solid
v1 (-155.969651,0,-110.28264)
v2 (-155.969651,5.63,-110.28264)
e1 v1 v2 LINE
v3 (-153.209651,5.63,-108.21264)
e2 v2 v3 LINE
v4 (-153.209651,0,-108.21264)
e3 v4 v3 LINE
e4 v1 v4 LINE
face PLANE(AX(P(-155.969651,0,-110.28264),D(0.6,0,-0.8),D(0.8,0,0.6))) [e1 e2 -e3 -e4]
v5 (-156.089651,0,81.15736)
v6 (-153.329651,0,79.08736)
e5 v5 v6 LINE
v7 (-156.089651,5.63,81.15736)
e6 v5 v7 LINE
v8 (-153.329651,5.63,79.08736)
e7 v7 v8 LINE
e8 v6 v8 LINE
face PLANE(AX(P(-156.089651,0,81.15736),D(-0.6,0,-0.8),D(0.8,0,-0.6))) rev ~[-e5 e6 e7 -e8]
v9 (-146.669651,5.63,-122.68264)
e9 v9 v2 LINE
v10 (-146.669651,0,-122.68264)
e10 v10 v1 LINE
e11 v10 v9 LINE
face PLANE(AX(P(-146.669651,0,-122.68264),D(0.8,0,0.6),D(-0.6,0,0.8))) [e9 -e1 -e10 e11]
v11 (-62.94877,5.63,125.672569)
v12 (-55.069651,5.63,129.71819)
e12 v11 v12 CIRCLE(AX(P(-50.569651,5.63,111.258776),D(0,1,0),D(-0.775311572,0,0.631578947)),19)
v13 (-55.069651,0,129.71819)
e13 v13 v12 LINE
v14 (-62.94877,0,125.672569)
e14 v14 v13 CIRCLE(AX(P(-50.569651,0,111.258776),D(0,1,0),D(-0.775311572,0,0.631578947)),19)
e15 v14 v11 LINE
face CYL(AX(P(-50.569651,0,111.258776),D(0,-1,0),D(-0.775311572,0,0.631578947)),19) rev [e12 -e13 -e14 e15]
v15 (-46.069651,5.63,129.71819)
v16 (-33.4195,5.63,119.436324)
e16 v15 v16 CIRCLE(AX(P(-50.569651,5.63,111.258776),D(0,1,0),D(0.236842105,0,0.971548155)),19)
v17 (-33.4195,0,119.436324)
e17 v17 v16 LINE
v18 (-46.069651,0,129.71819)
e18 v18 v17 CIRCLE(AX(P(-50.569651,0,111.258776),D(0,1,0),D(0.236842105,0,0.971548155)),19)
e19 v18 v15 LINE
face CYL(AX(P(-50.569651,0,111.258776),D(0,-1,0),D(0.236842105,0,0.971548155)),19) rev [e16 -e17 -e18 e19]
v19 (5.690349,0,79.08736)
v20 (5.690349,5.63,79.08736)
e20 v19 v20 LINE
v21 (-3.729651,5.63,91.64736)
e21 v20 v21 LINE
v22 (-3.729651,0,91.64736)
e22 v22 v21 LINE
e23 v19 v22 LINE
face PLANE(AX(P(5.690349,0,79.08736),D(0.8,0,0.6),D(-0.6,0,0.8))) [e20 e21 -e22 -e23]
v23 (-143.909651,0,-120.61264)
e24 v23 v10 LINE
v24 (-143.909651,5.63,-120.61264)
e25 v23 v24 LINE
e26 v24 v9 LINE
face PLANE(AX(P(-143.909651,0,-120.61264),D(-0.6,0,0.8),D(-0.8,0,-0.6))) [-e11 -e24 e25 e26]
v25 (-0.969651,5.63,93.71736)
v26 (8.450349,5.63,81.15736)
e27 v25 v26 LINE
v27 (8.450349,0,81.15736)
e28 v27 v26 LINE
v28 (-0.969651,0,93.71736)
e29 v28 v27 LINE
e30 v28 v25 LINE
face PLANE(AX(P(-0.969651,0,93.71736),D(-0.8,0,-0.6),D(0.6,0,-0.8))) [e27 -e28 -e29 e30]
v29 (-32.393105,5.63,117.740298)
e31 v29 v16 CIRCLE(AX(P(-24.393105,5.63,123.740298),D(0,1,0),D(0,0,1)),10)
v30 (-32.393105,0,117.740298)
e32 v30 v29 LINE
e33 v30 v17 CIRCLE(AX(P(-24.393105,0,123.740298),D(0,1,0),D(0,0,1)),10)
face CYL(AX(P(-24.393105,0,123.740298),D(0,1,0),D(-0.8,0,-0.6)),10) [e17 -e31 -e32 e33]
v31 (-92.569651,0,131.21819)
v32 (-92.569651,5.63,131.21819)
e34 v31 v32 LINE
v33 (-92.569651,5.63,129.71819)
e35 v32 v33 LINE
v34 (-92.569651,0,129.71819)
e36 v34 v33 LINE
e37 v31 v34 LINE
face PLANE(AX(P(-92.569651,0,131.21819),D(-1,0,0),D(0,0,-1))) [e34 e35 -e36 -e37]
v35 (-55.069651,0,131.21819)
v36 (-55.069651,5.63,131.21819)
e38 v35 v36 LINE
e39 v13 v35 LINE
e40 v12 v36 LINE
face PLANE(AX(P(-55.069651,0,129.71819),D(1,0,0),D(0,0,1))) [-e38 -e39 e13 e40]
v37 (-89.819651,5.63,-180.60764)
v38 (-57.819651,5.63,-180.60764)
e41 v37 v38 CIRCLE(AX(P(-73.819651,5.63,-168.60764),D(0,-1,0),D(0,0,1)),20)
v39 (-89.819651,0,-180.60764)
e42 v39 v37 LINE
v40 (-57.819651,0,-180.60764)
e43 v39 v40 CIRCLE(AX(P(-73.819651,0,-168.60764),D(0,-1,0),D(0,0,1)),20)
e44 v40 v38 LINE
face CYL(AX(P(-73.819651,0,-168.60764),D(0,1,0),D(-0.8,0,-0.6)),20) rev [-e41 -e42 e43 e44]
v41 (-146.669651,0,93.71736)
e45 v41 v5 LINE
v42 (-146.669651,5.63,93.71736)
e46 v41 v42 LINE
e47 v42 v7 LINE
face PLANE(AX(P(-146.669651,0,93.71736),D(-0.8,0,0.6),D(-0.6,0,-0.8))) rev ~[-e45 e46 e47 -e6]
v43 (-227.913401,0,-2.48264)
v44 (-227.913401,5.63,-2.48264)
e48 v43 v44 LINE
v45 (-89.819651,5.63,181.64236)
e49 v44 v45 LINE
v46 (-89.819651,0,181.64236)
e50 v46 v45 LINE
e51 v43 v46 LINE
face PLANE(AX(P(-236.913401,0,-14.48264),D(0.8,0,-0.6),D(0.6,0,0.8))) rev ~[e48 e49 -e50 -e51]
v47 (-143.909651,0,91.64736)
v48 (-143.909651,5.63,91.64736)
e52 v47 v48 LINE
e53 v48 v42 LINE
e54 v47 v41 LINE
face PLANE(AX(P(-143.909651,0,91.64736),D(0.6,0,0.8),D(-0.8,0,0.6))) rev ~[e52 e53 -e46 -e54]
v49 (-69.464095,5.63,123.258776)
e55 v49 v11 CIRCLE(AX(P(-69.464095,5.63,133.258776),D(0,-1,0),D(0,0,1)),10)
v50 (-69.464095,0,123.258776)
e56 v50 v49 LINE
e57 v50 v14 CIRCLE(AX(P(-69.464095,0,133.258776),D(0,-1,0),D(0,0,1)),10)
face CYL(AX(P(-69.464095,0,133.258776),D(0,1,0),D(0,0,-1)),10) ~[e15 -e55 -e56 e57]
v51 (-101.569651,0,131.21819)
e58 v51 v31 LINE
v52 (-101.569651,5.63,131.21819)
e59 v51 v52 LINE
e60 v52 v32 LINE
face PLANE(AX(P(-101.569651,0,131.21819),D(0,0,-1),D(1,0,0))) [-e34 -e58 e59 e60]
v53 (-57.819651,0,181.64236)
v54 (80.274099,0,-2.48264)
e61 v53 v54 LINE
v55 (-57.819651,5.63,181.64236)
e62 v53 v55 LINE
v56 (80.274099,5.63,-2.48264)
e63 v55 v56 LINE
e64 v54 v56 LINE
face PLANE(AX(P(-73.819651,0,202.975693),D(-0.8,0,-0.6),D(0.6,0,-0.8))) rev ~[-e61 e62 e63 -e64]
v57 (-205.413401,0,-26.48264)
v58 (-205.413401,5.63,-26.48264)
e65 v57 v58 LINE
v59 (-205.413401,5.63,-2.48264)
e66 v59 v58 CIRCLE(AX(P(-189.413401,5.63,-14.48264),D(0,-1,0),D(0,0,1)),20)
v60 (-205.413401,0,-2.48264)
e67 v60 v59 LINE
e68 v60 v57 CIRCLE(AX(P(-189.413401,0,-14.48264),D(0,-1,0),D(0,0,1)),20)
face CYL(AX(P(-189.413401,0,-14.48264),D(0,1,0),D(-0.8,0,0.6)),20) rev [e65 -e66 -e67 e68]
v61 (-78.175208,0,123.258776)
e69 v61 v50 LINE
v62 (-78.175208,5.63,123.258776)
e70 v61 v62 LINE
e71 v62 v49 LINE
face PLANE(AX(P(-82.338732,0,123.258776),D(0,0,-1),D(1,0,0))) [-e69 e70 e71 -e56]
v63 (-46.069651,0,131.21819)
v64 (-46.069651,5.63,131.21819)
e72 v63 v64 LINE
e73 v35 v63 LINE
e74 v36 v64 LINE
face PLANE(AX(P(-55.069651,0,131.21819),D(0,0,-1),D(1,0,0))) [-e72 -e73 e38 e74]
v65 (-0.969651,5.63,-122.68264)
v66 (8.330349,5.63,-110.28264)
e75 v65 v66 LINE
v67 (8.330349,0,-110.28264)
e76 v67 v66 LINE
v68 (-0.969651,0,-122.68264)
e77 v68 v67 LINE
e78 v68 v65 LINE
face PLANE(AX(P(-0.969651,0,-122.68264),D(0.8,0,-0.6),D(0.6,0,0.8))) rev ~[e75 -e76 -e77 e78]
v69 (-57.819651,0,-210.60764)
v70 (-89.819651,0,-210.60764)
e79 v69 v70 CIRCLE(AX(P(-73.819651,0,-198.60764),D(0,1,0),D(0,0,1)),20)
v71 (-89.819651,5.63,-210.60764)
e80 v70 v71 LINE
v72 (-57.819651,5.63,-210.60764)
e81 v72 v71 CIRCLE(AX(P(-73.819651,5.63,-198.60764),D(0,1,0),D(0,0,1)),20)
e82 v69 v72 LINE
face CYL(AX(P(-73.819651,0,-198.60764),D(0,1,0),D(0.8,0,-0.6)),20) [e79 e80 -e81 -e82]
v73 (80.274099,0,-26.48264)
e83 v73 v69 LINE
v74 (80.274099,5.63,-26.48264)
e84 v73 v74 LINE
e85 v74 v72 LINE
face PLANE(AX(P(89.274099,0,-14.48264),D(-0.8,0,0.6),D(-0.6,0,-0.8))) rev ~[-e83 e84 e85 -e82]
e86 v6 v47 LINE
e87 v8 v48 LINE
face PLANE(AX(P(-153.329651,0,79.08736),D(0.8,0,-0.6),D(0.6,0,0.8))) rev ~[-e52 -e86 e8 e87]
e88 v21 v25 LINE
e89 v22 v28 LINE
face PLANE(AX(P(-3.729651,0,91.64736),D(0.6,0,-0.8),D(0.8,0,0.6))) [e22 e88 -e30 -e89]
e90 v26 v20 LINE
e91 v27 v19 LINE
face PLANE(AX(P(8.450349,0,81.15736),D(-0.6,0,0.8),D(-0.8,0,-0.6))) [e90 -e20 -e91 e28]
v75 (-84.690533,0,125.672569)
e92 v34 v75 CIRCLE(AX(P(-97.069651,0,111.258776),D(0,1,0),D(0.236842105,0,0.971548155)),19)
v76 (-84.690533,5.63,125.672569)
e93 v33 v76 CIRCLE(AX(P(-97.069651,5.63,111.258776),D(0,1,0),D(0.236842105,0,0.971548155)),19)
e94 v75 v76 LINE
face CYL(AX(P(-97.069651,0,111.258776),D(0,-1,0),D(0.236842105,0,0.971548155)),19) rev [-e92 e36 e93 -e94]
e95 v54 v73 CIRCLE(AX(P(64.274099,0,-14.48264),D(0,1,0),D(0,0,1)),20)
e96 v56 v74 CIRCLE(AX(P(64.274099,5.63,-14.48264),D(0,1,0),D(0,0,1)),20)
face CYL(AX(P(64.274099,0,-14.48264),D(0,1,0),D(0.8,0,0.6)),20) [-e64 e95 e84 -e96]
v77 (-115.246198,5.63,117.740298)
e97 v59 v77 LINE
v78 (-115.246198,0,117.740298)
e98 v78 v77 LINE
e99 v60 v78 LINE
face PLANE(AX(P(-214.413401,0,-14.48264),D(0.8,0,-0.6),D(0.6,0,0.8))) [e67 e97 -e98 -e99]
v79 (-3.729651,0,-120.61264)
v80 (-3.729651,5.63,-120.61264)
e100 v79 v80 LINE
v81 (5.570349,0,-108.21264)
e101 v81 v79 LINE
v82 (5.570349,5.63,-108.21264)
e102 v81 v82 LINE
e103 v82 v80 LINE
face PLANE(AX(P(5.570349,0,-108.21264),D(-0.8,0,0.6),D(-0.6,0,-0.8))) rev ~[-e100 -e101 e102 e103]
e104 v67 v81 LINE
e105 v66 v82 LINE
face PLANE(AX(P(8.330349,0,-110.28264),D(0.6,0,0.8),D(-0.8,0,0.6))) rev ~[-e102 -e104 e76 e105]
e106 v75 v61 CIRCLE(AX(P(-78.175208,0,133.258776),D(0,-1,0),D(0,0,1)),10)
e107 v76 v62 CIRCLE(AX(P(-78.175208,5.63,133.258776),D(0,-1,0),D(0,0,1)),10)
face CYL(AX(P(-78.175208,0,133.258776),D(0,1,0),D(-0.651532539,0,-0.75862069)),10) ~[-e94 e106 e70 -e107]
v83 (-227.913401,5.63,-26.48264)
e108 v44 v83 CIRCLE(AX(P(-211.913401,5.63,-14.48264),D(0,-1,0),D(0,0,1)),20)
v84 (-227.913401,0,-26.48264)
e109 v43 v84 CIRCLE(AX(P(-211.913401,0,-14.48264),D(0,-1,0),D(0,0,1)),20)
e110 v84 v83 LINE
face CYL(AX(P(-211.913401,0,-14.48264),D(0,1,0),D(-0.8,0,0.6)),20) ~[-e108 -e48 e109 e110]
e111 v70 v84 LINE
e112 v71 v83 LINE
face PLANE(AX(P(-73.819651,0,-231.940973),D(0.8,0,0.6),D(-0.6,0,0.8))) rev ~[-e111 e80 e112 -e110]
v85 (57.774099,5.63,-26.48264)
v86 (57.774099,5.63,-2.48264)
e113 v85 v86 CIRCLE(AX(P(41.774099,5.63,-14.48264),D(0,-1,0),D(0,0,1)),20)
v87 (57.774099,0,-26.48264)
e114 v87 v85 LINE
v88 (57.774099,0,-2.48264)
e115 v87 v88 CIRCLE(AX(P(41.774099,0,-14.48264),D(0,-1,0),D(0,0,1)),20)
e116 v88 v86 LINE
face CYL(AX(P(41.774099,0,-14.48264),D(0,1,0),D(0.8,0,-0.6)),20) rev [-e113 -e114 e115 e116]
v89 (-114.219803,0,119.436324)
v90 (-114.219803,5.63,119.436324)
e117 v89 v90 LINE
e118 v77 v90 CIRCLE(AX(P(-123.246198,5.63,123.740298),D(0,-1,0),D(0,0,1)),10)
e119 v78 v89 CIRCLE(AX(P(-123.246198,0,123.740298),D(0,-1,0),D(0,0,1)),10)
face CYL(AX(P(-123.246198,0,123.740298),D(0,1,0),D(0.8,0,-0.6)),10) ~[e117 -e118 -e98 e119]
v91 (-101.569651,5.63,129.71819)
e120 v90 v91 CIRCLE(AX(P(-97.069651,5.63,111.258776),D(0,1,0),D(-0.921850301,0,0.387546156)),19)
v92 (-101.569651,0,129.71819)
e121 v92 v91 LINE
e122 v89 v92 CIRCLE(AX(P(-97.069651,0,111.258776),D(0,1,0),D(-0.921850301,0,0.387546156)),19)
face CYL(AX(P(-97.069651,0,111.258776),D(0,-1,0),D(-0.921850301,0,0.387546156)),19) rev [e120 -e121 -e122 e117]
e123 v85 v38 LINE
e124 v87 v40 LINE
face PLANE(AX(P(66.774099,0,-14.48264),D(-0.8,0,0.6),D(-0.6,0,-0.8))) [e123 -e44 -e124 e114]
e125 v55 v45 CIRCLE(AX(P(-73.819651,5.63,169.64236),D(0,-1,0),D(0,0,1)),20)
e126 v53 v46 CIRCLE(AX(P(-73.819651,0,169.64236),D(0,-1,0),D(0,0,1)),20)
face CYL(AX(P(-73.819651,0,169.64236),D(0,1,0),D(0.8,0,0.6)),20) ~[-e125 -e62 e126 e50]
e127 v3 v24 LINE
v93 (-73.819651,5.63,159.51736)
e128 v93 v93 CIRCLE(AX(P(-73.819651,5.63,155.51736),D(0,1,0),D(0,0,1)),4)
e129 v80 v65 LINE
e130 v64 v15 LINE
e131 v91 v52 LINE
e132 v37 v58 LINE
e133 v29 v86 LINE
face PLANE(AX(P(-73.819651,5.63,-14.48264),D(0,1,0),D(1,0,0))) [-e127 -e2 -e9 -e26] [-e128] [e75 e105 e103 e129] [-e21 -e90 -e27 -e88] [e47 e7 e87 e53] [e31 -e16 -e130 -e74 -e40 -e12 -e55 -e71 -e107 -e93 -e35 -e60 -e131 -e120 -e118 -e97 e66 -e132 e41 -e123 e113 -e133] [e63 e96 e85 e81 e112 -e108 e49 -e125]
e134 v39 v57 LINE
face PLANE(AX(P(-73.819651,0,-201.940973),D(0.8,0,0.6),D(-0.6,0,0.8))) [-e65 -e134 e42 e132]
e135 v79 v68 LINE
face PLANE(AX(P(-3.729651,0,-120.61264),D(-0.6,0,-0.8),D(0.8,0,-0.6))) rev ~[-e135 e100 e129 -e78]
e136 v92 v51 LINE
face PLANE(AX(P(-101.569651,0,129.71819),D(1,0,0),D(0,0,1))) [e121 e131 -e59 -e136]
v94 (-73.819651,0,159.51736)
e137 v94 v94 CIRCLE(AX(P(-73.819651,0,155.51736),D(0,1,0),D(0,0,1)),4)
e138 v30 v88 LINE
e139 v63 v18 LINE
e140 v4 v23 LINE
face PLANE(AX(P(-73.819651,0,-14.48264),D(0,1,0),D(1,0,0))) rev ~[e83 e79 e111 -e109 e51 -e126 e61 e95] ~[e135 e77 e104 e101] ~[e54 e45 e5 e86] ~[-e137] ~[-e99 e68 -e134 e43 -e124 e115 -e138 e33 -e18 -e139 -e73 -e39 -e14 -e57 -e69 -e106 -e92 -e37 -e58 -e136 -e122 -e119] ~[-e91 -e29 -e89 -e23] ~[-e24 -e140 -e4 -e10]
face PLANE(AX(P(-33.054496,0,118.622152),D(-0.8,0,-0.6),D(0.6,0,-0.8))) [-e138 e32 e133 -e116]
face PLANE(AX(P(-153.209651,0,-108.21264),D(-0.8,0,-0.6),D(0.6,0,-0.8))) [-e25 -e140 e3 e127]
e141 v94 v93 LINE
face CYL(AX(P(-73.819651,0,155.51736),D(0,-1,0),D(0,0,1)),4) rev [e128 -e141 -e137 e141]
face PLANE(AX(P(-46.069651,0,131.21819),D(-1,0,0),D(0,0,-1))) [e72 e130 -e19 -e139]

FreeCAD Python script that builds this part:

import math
import FreeCAD as App
import Part
import Sketcher
from FreeCAD import Vector


def edges_at(feature, points):
    """Names of the edges that pass closest to the given points."""
    edges = feature.Shape.Edges
    near = lambda p: min(range(len(edges)), key=lambda i: edges[i].distToShape(Part.Vertex(*p))[0])
    return sorted({f"Edge{near(p) + 1}" for p in points})

doc = App.newDocument("Part")
params = doc.addObject("Spreadsheet::Sheet", "Params")
for row, (alias, value) in enumerate([
    ("sketch1_diameter", "8 mm"),
    ("sketch1_radius", "19 mm"),
    ("sketch1_width", "9 mm"),
    ("sketch1_height", "1.5 mm"),
    ("sketch1_height2", "12 mm"),
    ("pad1_length", "5.63 mm"),
    ("fillet_radius", "20 mm"),
    ("fillet2_radius", "20 mm"),
    ("fillet3_radius", "10 mm"),
], start=1):
    params.set(f"A{row}", alias)
    params.set(f"B{row}", "=" + value)
    params.setAlias(f"B{row}", alias)

body = doc.addObject("PartDesign::Body", "Body")

sketch1 = doc.addObject("Sketcher::SketchObject", "Sketch")
body.addObject(sketch1)
sketch1.AttachmentSupport = (doc.XZ_Plane, [""])
sketch1.MapMode = "FlatFace"
sketch1.addGeometry([
    Part.LineSegment(Vector(-73.8, 203, 0), Vector(89.3, -14.5, 0)),
    Part.LineSegment(Vector(89.3, -14.5, 0), Vector(-73.8, -231.9, 0)),
    Part.LineSegment(Vector(-73.8, -231.9, 0), Vector(-236.9, -14.5, 0)),
    Part.LineSegment(Vector(-236.9, -14.5, 0), Vector(-73.8, 203, 0)),
    Part.LineSegment(Vector(-146.7, 93.7, 0), Vector(-156.1, 81.2, 0)),
    Part.LineSegment(Vector(-156.1, 81.2, 0), Vector(-153.3, 79.1, 0)),
    Part.LineSegment(Vector(-153.3, 79.1, 0), Vector(-143.9, 91.6, 0)),
    Part.LineSegment(Vector(-143.9, 91.6, 0), Vector(-146.7, 93.7, 0)),
    Part.Circle(Vector(-73.8, 155.5, 0), Vector(0, 0, 1), 4),
    Part.LineSegment(Vector(5.7, 79.1, 0), Vector(8.5, 81.2, 0)),
    Part.LineSegment(Vector(8.5, 81.2, 0), Vector(-1, 93.7, 0)),
    Part.LineSegment(Vector(-1, 93.7, 0), Vector(-3.7, 91.6, 0)),
    Part.LineSegment(Vector(-3.7, 91.6, 0), Vector(5.7, 79.1, 0)),
    Part.LineSegment(Vector(-156, -110.3, 0), Vector(-146.7, -122.7, 0)),
    Part.LineSegment(Vector(-146.7, -122.7, 0), Vector(-143.9, -120.6, 0)),
    Part.LineSegment(Vector(-143.9, -120.6, 0), Vector(-153.2, -108.2, 0)),
    Part.LineSegment(Vector(-153.2, -108.2, 0), Vector(-156, -110.3, 0)),
    Part.LineSegment(Vector(-114.6, 118.6, 0), Vector(-214.4, -14.5, 0)),
    Part.LineSegment(Vector(-214.4, -14.5, 0), Vector(-73.8, -201.9, 0)),
    Part.LineSegment(Vector(-73.8, -201.9, 0), Vector(66.8, -14.5, 0)),
    Part.LineSegment(Vector(66.8, -14.5, 0), Vector(-33.1, 118.6, 0)),
    Part.ArcOfCircle(Part.Circle(Vector(-50.6, 111.3, 0), Vector(0, 0, 1), 19), math.radians(23), math.radians(76)),
    Part.LineSegment(Vector(-46.1, 129.7, 0), Vector(-46.1, 131.2, 0)),
    Part.LineSegment(Vector(-46.1, 131.2, 0), Vector(-55.1, 131.2, 0)),
    Part.LineSegment(Vector(-55.1, 131.2, 0), Vector(-55.1, 129.7, 0)),
    Part.ArcOfCircle(Part.Circle(Vector(-50.6, 111.3, 0), Vector(0, 0, 1), 19), math.radians(104), math.radians(141)),
    Part.LineSegment(Vector(-65.3, 123.3, 0), Vector(-82.3, 123.3, 0)),
    Part.ArcOfCircle(Part.Circle(Vector(-97.1, 111.3, 0), Vector(0, 0, 1), 19), math.radians(39), math.radians(76)),
    Part.LineSegment(Vector(-92.6, 129.7, 0), Vector(-92.6, 131.2, 0)),
    Part.LineSegment(Vector(-92.6, 131.2, 0), Vector(-101.6, 131.2, 0)),
    Part.LineSegment(Vector(-101.6, 131.2, 0), Vector(-101.6, 129.7, 0)),
    Part.ArcOfCircle(Part.Circle(Vector(-97.1, 111.3, 0), Vector(0, 0, 1), 19), math.radians(104), math.radians(157)),
    Part.LineSegment(Vector(-3.7, -120.6, 0), Vector(-1, -122.7, 0)),
    Part.LineSegment(Vector(-1, -122.7, 0), Vector(8.3, -110.3, 0)),
    Part.LineSegment(Vector(8.3, -110.3, 0), Vector(5.6, -108.2, 0)),
    Part.LineSegment(Vector(5.6, -108.2, 0), Vector(-3.7, -120.6, 0)),
], False)
sketch1.addConstraint([
    Sketcher.Constraint("Coincident", 0, 2, 1, 1),
    Sketcher.Constraint("Coincident", 1, 2, 2, 1),
    Sketcher.Constraint("Coincident", 2, 2, 3, 1),
    Sketcher.Constraint("Coincident", 3, 2, 0, 1),
    Sketcher.Constraint("Coincident", 4, 2, 5, 1),
    Sketcher.Constraint("Coincident", 5, 2, 6, 1),
    Sketcher.Constraint("Coincident", 6, 2, 7, 1),
    Sketcher.Constraint("Coincident", 7, 2, 4, 1),
    Sketcher.Constraint("Coincident", 9, 2, 10, 1),
    Sketcher.Constraint("Coincident", 10, 2, 11, 1),
    Sketcher.Constraint("Coincident", 11, 2, 12, 1),
    Sketcher.Constraint("Coincident", 12, 2, 9, 1),
    Sketcher.Constraint("Coincident", 13, 2, 14, 1),
    Sketcher.Constraint("Coincident", 14, 2, 15, 1),
    Sketcher.Constraint("Coincident", 15, 2, 16, 1),
    Sketcher.Constraint("Coincident", 16, 2, 13, 1),
    Sketcher.Constraint("Coincident", 17, 2, 18, 1),
    Sketcher.Constraint("Coincident", 18, 2, 19, 1),
    Sketcher.Constraint("Coincident", 19, 2, 20, 1),
    Sketcher.Constraint("Coincident", 20, 2, 21, 1),
    Sketcher.Constraint("Coincident", 21, 2, 22, 1),
    Sketcher.Constraint("Coincident", 22, 2, 23, 1),
    Sketcher.Constraint("Coincident", 23, 2, 24, 1),
    Sketcher.Constraint("Coincident", 24, 2, 25, 1),
    Sketcher.Constraint("Coincident", 25, 2, 26, 1),
    Sketcher.Constraint("Coincident", 26, 2, 27, 1),
    Sketcher.Constraint("Coincident", 27, 2, 28, 1),
    Sketcher.Constraint("Coincident", 28, 2, 29, 1),
    Sketcher.Constraint("Coincident", 29, 2, 30, 1),
    Sketcher.Constraint("Coincident", 30, 2, 31, 1),
    Sketcher.Constraint("Coincident", 31, 2, 17, 1),
    Sketcher.Constraint("Coincident", 32, 2, 33, 1),
    Sketcher.Constraint("Coincident", 33, 2, 34, 1),
    Sketcher.Constraint("Coincident", 34, 2, 35, 1),
    Sketcher.Constraint("Coincident", 35, 2, 32, 1),
    Sketcher.Constraint("Vertical", 22),
    Sketcher.Constraint("Horizontal", 23),
    Sketcher.Constraint("Vertical", 24),
    Sketcher.Constraint("Horizontal", 26),
    Sketcher.Constraint("Vertical", 28),
    Sketcher.Constraint("Horizontal", 29),
    Sketcher.Constraint("Vertical", 30),
    Sketcher.Constraint("Coincident", 25, 3, 21, 3),
    Sketcher.Constraint("Coincident", 31, 3, 27, 3),
    Sketcher.Constraint("Equal", 21, 25),
    Sketcher.Constraint("Equal", 25, 27),
    Sketcher.Constraint("Equal", 27, 31),
    Sketcher.Constraint("Parallel", 0, 2),
    Sketcher.Constraint("Parallel", 1, 3),
    Sketcher.Constraint("Parallel", 3, 4),
    Sketcher.Constraint("Perpendicular", 4, 5),
    Sketcher.Constraint("Perpendicular", 5, 6),
    Sketcher.Constraint("Perpendicular", 6, 7),
    Sketcher.Constraint("Perpendicular", 2, 9),
    Sketcher.Constraint("Perpendicular", 9, 10),
    Sketcher.Constraint("Perpendicular", 10, 11),
    Sketcher.Constraint("Perpendicular", 11, 12),
    Sketcher.Constraint("Parallel", 12, 13),
    Sketcher.Constraint("Perpendicular", 13, 14),
    Sketcher.Constraint("Perpendicular", 14, 15),
    Sketcher.Constraint("Perpendicular", 15, 16),
    Sketcher.Constraint("Perpendicular", 7, 17),
    Sketcher.Constraint("Perpendicular", 16, 18),
    Sketcher.Constraint("Parallel", 17, 19),
    Sketcher.Constraint("Parallel", 18, 20),
    Sketcher.Constraint("Perpendicular", 19, 32),
    Sketcher.Constraint("Perpendicular", 32, 33),
    Sketcher.Constraint("Perpendicular", 33, 34),
    Sketcher.Constraint("Perpendicular", 34, 35),
    Sketcher.Constraint("Horizontal", 25, 3, 27, 3),
    Sketcher.Constraint("Horizontal", 0, 2, 2, 2),
    Sketcher.Constraint("Horizontal", 4, 2, 9, 2),
    Sketcher.Constraint("Horizontal", 7, 2, 10, 2),
    Sketcher.Constraint("Horizontal", 6, 2, 11, 2),
    Sketcher.Constraint("Horizontal", 2, 2, 17, 2),
    Sketcher.Constraint("Horizontal", 17, 2, 19, 2),
    Sketcher.Constraint("Horizontal", 21, 2, 24, 2),
    Sketcher.Constraint("Horizontal", 24, 2, 27, 2),
    Sketcher.Constraint("Horizontal", 23, 2, 28, 2),
    Sketcher.Constraint("Horizontal", 27, 2, 30, 2),
    Sketcher.Constraint("Horizontal", 20, 2, 31, 2),
    Sketcher.Constraint("Horizontal", 13, 2, 32, 2),
    Sketcher.Constraint("Horizontal", 16, 2, 33, 2),
    Sketcher.Constraint("Horizontal", 15, 2, 34, 2),
    Sketcher.Constraint("Vertical", 8, 3, 1, 2),
    Sketcher.Constraint("Vertical", 1, 2, 3, 2),
    Sketcher.Constraint("Vertical", 7, 2, 13, 2),
    Sketcher.Constraint("Vertical", 6, 2, 14, 2),
    Sketcher.Constraint("Vertical", 3, 2, 18, 2),
    Sketcher.Constraint("Vertical", 10, 2, 32, 2),
    Sketcher.Constraint("Diameter", 8, 8.0),
    Sketcher.Constraint("Radius", 21, 19.0),
    Sketcher.Constraint("DistanceX", 23, 2, 23, 1, 9.0),
    Sketcher.Constraint("DistanceY", 22, 1, 22, 2, 1.5),
    Sketcher.Constraint("DistanceY", 0, 2, 8, 3, 170.0),
    Sketcher.Constraint("DistanceY", 1, 2, 18, 2, 30.0),
    Sketcher.Constraint("DistanceX", 27, 3, 21, 2, 51.0),
    Sketcher.Constraint("DistanceY", 25, 3, 25, 2, 12.0),
    Sketcher.Constraint("Distance", 4, 15.7),
    Sketcher.Constraint("Distance", 13, 15.5),
    Sketcher.Constraint("DistanceX", 7, 2, 31, 3, 49.6),
    Sketcher.Constraint("DistanceX", 21, 3, 10, 2, 49.6),
    Sketcher.Constraint("DistanceY", 10, 2, 8, 3, 61.8),
    Sketcher.Constraint("DistanceY", 13, 2, 2, 2, 108.2),
    Sketcher.Constraint("DistanceY", 14, 2, 5, 2, 199.7),
    Sketcher.Constraint("DistanceX", 15, 2, 14, 2, 9.3),
    Sketcher.Constraint("DistanceX", -1, 1, 0, 2, 89.274099),
    Sketcher.Constraint("DistanceX", 2, 2, -1, 1, 236.913401),
    Sketcher.Constraint("Distance", 17, 166.38099),
    Sketcher.Constraint("DistanceY", -1, 1, 8, 3, 155.51736),
])
sketch1.setExpression("Constraints[90]", "Params.sketch1_diameter")
sketch1.setExpression("Constraints[91]", "Params.sketch1_radius")
sketch1.setExpression("Constraints[92]", "Params.sketch1_width")
sketch1.setExpression("Constraints[93]", "Params.sketch1_height")
sketch1.setExpression("Constraints[97]", "Params.sketch1_height2")
pad1 = doc.addObject("PartDesign::Pad", "Pad")
body.addObject(pad1)
pad1.Profile = sketch1
pad1.setExpression("Length", "Params.pad1_length")
pad1.Reversed = True
doc.recompute()

fillet = doc.addObject("PartDesign::Fillet", "Fillet")
body.addObject(fillet)
fillet.Base = (pad1, edges_at(pad1, [
    (89.274, 2.815, -14.483),
    (-73.82, 2.815, 202.976),
    (-236.913, 2.815, -14.483),
    (-73.82, 2.815, -231.941),
]))
fillet.setExpression("Radius", "Params.fillet_radius")
doc.recompute()

fillet2 = doc.addObject("PartDesign::Fillet", "Fillet001")
body.addObject(fillet2)
fillet2.Base = (fillet, edges_at(fillet, [(66.774, 2.815, -14.483), (-73.82, 2.815, -201.941), (-214.413, 2.815, -14.483)]))
fillet2.setExpression("Radius", "Params.fillet2_radius")
doc.recompute()

fillet3 = doc.addObject("PartDesign::Fillet", "Fillet002")
body.addObject(fillet3)
fillet3.Base = (fillet2, edges_at(fillet2, [
    (-114.585, 2.815, 118.622),
    (-82.339, 2.815, 123.259),
    (-65.301, 2.815, 123.259),
    (-33.054, 2.815, 118.622),
]))
fillet3.setExpression("Radius", "Params.fillet3_radius")

doc.recompute()
